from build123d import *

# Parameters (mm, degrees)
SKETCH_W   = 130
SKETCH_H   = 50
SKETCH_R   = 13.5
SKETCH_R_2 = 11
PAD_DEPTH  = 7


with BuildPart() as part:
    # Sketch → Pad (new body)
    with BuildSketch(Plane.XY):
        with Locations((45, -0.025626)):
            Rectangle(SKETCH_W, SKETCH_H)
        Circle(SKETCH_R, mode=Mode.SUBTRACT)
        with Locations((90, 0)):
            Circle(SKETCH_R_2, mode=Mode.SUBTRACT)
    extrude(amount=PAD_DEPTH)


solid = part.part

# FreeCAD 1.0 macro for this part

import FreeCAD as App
import Part
import Sketcher


def add_polygon(sketch, points):
    """Adds a closed chain of lines whose ends are joined by coincident constraints."""
    first, n = sketch.GeometryCount, len(points)
    for a, b in zip(points, points[1:] + points[:1]):
        sketch.addGeometry(Part.LineSegment(App.Vector(*a, 0), App.Vector(*b, 0)), False)
    for i in range(n):
        sketch.addConstraint(Sketcher.Constraint("Coincident", first + i, 2, first + (i + 1) % n, 1))

doc = App.newDocument("Part")
body = doc.addObject("PartDesign::Body", "Body")

sketch1 = doc.addObject("Sketcher::SketchObject", "Sketch")
body.addObject(sketch1)
sketch1.AttachmentSupport = (doc.XY_Plane, [""])
sketch1.MapMode = "FlatFace"
add_polygon(sketch1, [(-20, 25), (-20, -25), (110, -25), (110, 25)])
sketch1.addGeometry(Part.Circle(App.Vector(0, 0, 0), App.Vector(0, 0, 1), 14), False)
sketch1.addGeometry(Part.Circle(App.Vector(90, 0, 0), App.Vector(0, 0, 1), 11), False)
sketch1.addConstraint([
    Sketcher.Constraint("Vertical", 0),
    Sketcher.Constraint("Horizontal", 1),
    Sketcher.Constraint("Vertical", 2),
    Sketcher.Constraint("Horizontal", 3),
    Sketcher.Constraint("Coincident", 4, 3, -1, 1),
    Sketcher.Constraint("PointOnObject", 5, 3, -1),
    Sketcher.Constraint("Diameter", 4, 27.0),
    Sketcher.Constraint("Diameter", 5, 22.0),
    Sketcher.Constraint("DistanceX", 1, 1, 1, 2, 130.0),
    Sketcher.Constraint("DistanceY", 0, 2, 0, 1, 50.0),
    Sketcher.Constraint("DistanceX", -1, 1, 5, 3, 90.0),
    Sketcher.Constraint("DistanceX", 0, 2, -1, 1, 20.0),
    Sketcher.Constraint("DistanceY", 0, 2, -1, 1, 25.025626),
])
pad1 = doc.addObject("PartDesign::Pad", "Pad")
body.addObject(pad1)
pad1.Profile = sketch1
pad1.Length = 7

doc.recompute()
